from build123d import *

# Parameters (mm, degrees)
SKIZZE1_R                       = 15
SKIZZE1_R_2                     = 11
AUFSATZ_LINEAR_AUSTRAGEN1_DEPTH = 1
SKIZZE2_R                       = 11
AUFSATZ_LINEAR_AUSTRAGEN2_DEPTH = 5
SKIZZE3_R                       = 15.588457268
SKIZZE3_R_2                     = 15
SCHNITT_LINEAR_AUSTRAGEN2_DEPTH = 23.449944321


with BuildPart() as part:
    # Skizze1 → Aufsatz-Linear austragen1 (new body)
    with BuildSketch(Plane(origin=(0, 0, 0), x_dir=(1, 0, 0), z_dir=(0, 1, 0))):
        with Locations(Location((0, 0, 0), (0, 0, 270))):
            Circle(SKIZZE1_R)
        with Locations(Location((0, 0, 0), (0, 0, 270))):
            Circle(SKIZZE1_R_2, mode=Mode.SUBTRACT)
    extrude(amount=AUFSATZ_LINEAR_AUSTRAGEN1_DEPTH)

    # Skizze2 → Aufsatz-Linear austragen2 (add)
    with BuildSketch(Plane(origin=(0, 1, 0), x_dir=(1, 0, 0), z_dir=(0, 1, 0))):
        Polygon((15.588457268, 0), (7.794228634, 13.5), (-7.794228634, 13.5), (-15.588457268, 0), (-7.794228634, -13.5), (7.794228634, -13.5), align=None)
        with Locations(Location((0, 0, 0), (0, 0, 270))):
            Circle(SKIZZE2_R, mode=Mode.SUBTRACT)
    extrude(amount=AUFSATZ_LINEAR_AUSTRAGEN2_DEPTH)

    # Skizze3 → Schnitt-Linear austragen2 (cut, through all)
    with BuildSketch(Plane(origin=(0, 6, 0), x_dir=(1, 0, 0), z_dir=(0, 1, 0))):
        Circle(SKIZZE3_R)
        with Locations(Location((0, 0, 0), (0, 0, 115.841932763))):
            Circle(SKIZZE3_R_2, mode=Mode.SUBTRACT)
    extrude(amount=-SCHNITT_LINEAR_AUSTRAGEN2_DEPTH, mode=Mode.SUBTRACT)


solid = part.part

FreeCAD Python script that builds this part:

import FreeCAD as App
import Part
import Sketcher
Q = App.Units.Quantity


def add_polygon(sketch, points):
    """Adds a closed chain of lines whose ends are joined by coincident constraints."""
    first, n = sketch.GeometryCount, len(points)
    for a, b in zip(points, points[1:] + points[:1]):
        sketch.addGeometry(Part.LineSegment(App.Vector(*a, 0), App.Vector(*b, 0)), False)
    for i in range(n):
        sketch.addConstraint(Sketcher.Constraint("Coincident", first + i, 2, first + (i + 1) % n, 1))

doc = App.newDocument("Part")
params = doc.addObject("Spreadsheet::Sheet", "Params")
for row, (alias, value) in enumerate([
    ("sketch1_diameter", "30 mm"),
    ("sketch1_diameter2", "22 mm"),
    ("pad1_length", "1 mm"),
    ("sketch2_diameter", "22 mm"),
    ("pad2_length", "5 mm"),
    ("sketch3_diameter", "30 mm"),
], start=1):
    params.set(f"A{row}", alias)
    params.set(f"B{row}", "=" + value)
    params.setAlias(f"B{row}", alias)

body = doc.addObject("PartDesign::Body", "Body")

# Sketch on XZ plane
sketch1 = body.newObject("Sketcher::SketchObject", "Sketch")
sketch1.AttachmentSupport = (doc.getObject("XZ_Plane"), [""])
sketch1.MapMode = "FlatFace"
sketch1.addGeometry(Part.Circle(App.Vector(0, 0, 0), App.Vector(0, 0, 1), 15), False)
sketch1.addGeometry(Part.Circle(App.Vector(0, 0, 0), App.Vector(0, 0, 1), 11), False)
sketch1.addConstraint(Sketcher.Constraint("Coincident", 0, 3, -1, 1))
sketch1.addConstraint(Sketcher.Constraint("Coincident", 1, 3, -1, 1))
sketch1.addConstraint(Sketcher.Constraint("Diameter", 0, 30.0))
sketch1.addConstraint(Sketcher.Constraint("Diameter", 1, 22.0))
sketch1.setExpression("Constraints[2]", "Params.sketch1_diameter")
sketch1.setExpression("Constraints[3]", "Params.sketch1_diameter2")
pad1 = body.newObject("PartDesign::Pad", "Pad")
pad1.Profile = sketch1
pad1.setExpression("Length", "Params.pad1_length")
pad1.Reversed = True

# Sketch on XZ plane
sketch2 = body.newObject("Sketcher::SketchObject", "Sketch001")
sketch2.AttachmentSupport = (doc.getObject("XZ_Plane"), [""])
sketch2.MapMode = "FlatFace"
sketch2.AttachmentOffset = App.Placement(App.Vector(0, 0, -1), App.Rotation())
add_polygon(sketch2, [(16, 0), (8, -14), (-8, -14), (-16, 0), (-8, 14), (8, 14)])  # lines 0-5
sketch2.addGeometry(Part.Circle(App.Vector(0, 0, 0), App.Vector(0, 0, 1), 11), False)  # 6
sketch2.addConstraint(Sketcher.Constraint("Horizontal", 1))
sketch2.addConstraint(Sketcher.Constraint("Horizontal", 4))
sketch2.addConstraint(Sketcher.Constraint("Coincident", 6, 3, -1, 1))
sketch2.addConstraint(Sketcher.Constraint("Symmetric", 0, 2, 3, 2, -1, 1))
sketch2.addConstraint(Sketcher.Constraint("Symmetric", 2, 2, 5, 2, -1, 1))
sketch2.addConstraint(Sketcher.Constraint("PointOnObject", 2, 2, -1))
sketch2.addConstraint(Sketcher.Constraint("Parallel", 2, 5))
sketch2.addConstraint(Sketcher.Constraint("Vertical", 1, 2, 3, 2))
sketch2.addConstraint(Sketcher.Constraint("Diameter", 6, 22.0))
sketch2.addConstraint(Sketcher.Constraint("Angle", 0, Q("-120 deg")))
sketch2.addConstraint(Sketcher.Constraint("DistanceY", 1, 2, 3, 2, 27.0))
sketch2.addConstraint(Sketcher.Constraint("DistanceX", 1, 2, 1, 1, 15.588457))
sketch2.setExpression("Constraints[14]", "Params.sketch2_diameter")
pad2 = body.newObject("PartDesign::Pad", "Pad001")
pad2.Profile = sketch2
pad2.setExpression("Length", "Params.pad2_length")
pad2.Reversed = True

# Sketch on XZ plane
sketch3 = body.newObject("Sketcher::SketchObject", "Sketch002")
sketch3.AttachmentSupport = (doc.getObject("XZ_Plane"), [""])
sketch3.MapMode = "FlatFace"
sketch3.AttachmentOffset = App.Placement(App.Vector(0, 0, -6), App.Rotation())
sketch3.addGeometry(Part.Circle(App.Vector(0, 0, 0), App.Vector(0, 0, 1), 16), False)
sketch3.addGeometry(Part.Circle(App.Vector(0, 0, 0), App.Vector(0, 0, 1), 15), False)
sketch3.addConstraint(Sketcher.Constraint("Coincident", 0, 3, -1, 1))
sketch3.addConstraint(Sketcher.Constraint("Coincident", 1, 3, -1, 1))
sketch3.addConstraint(Sketcher.Constraint("Diameter", 1, 30.0))
sketch3.addConstraint(Sketcher.Constraint("Diameter", 0, 31.176915))
sketch3.setExpression("Constraints[2]", "Params.sketch3_diameter")
pocket1 = body.newObject("PartDesign::Pocket", "Pocket")
pocket1.Profile = sketch3
pocket1.Type = "ThroughAll"
pocket1.Reversed = True

doc.recompute()
